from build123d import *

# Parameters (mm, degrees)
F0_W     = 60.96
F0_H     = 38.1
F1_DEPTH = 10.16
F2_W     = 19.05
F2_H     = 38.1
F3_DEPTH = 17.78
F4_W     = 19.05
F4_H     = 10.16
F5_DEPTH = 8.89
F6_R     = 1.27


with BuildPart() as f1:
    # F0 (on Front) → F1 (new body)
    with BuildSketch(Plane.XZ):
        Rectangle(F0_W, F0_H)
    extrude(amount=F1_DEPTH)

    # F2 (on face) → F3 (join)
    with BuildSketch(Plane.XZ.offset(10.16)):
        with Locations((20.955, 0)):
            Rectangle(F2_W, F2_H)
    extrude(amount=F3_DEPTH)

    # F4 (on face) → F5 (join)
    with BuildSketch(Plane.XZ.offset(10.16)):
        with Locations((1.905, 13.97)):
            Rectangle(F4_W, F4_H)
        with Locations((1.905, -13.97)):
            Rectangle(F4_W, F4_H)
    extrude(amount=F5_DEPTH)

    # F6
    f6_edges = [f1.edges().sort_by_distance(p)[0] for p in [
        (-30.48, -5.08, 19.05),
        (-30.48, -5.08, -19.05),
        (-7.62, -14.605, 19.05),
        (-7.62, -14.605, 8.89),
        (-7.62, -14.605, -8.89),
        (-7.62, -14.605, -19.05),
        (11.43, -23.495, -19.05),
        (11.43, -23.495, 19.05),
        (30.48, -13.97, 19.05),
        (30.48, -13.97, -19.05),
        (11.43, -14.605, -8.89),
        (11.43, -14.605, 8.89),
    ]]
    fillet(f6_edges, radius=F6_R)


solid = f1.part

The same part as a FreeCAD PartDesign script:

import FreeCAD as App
import Part
import Sketcher
Q = App.Units.Quantity


def edges_at(feature, points):
    """Names of the edges that pass closest to the given points."""
    edges = feature.Shape.Edges
    near = lambda p: min(range(len(edges)), key=lambda i: edges[i].distToShape(Part.Vertex(*p))[0])
    return sorted({f"Edge{near(p) + 1}" for p in points})


def add_polygon(sketch, points):
    """Adds a closed chain of lines whose ends are joined by coincident constraints."""
    first, n = sketch.GeometryCount, len(points)
    for a, b in zip(points, points[1:] + points[:1]):
        sketch.addGeometry(Part.LineSegment(App.Vector(*a, 0), App.Vector(*b, 0)), False)
    for i in range(n):
        sketch.addConstraint(Sketcher.Constraint("Coincident", first + i, 2, first + (i + 1) % n, 1))

doc = App.newDocument("Part")
body = doc.addObject("PartDesign::Body", "Body")

# Sketch on XZ plane
sketch1 = doc.addObject("Sketcher::SketchObject", "Sketch")
body.addObject(sketch1)
sketch1.AttachmentSupport = (doc.XZ_Plane, [""])
sketch1.MapMode = "FlatFace"
add_polygon(sketch1, [(-30, 19), (-30, -19), (30, -19), (30, 19)])  # lines 0-3
sketch1.addConstraint([
    Sketcher.Constraint("Vertical", 0),
    Sketcher.Constraint("Horizontal", 1),
    Sketcher.Constraint("Vertical", 2),
    Sketcher.Constraint("Horizontal", 3),
    Sketcher.Constraint("Symmetric", 0, 2, 2, 2, -1, 1),
    Sketcher.Constraint("DistanceX", 1, 1, 1, 2, Q("2.4 in")),
    Sketcher.Constraint("DistanceY", 0, 2, 0, 1, Q("1.5 in")),
])
pad1 = doc.addObject("PartDesign::Pad", "Pad")
body.addObject(pad1)
pad1.Profile = sketch1
pad1.Length = Q("0.4 in")

# Sketch on XZ plane
sketch2 = doc.addObject("Sketcher::SketchObject", "Sketch001")
body.addObject(sketch2)
sketch2.AttachmentSupport = (doc.XZ_Plane, [""])
sketch2.MapMode = "FlatFace"
sketch2.AttachmentOffset = App.Placement(App.Vector(0, 0, 0.4 * 25.4), App.Rotation())
add_polygon(sketch2, [(11, 19), (11, -19), (30, -19), (30, 19)])  # lines 0-3
sketch2.addConstraint([
    Sketcher.Constraint("Vertical", 0),
    Sketcher.Constraint("Horizontal", 1),
    Sketcher.Constraint("Vertical", 2),
    Sketcher.Constraint("Horizontal", 3),
    Sketcher.Constraint("DistanceY", 0, 2, 0, 1, Q("1.5 in")),
    Sketcher.Constraint("DistanceX", 1, 1, 1, 2, Q("0.75 in")),
    Sketcher.Constraint("DistanceX", -1, 1, 1, 2, Q("1.2 in")),
    Sketcher.Constraint("DistanceY", 0, 2, -1, 1, Q("0.75 in")),
])
pad2 = doc.addObject("PartDesign::Pad", "Pad001")
body.addObject(pad2)
pad2.Profile = sketch2
pad2.Length = Q("0.7 in")

# Sketch on XZ plane
sketch3 = doc.addObject("Sketcher::SketchObject", "Sketch002")
body.addObject(sketch3)
sketch3.AttachmentSupport = (doc.XZ_Plane, [""])
sketch3.MapMode = "FlatFace"
sketch3.AttachmentOffset = App.Placement(App.Vector(0, 0, 0.4 * 25.4), App.Rotation())
add_polygon(sketch3, [(-8, 19), (-8, 9), (11, 9), (11, 19)])  # lines 0-3
add_polygon(sketch3, [(-8, -9), (-8, -19), (11, -19), (11, -9)])  # lines 4-7
sketch3.addConstraint([
    Sketcher.Constraint("Vertical", 0),
    Sketcher.Constraint("Horizontal", 1),
    Sketcher.Constraint("Vertical", 2),
    Sketcher.Constraint("Horizontal", 3),
    Sketcher.Constraint("Vertical", 4),
    Sketcher.Constraint("Horizontal", 5),
    Sketcher.Constraint("Vertical", 6),
    Sketcher.Constraint("Horizontal", 7),
    Sketcher.Constraint("Symmetric", 3, 2, 4, 2, -1),
    Sketcher.Constraint("Symmetric", 1, 2, 6, 2, -1),
    Sketcher.Constraint("DistanceY", 0, 2, 0, 1, Q("0.4 in")),
    Sketcher.Constraint("DistanceX", 1, 1, 1, 2, Q("0.75 in")),
    Sketcher.Constraint("DistanceX", 0, 2, -1, 1, Q("0.3 in")),
    Sketcher.Constraint("DistanceY", 4, 2, 0, 2, Q("1.1 in")),
])
pad3 = doc.addObject("PartDesign::Pad", "Pad002")
body.addObject(pad3)
pad3.Profile = sketch3
pad3.Length = Q("0.35 in")
doc.recompute()

fillet = doc.addObject("PartDesign::Fillet", "Fillet")
body.addObject(fillet)
fillet.Base = (pad3, edges_at(pad3, [
    (-30.48, -5.08, 19.05),
    (-30.48, -5.08, -19.05),
    (-7.62, -14.605, 19.05),
    (-7.62, -14.605, 8.89),
    (-7.62, -14.605, -8.89),
    (-7.62, -14.605, -19.05),
    (11.43, -23.495, -19.05),
    (11.43, -23.495, 19.05),
    (30.48, -13.97, 19.05),
    (30.48, -13.97, -19.05),
    (11.43, -14.605, -8.89),
    (11.43, -14.605, 8.89),
]))
fillet.Radius = Q("0.05 in")

doc.recompute()
